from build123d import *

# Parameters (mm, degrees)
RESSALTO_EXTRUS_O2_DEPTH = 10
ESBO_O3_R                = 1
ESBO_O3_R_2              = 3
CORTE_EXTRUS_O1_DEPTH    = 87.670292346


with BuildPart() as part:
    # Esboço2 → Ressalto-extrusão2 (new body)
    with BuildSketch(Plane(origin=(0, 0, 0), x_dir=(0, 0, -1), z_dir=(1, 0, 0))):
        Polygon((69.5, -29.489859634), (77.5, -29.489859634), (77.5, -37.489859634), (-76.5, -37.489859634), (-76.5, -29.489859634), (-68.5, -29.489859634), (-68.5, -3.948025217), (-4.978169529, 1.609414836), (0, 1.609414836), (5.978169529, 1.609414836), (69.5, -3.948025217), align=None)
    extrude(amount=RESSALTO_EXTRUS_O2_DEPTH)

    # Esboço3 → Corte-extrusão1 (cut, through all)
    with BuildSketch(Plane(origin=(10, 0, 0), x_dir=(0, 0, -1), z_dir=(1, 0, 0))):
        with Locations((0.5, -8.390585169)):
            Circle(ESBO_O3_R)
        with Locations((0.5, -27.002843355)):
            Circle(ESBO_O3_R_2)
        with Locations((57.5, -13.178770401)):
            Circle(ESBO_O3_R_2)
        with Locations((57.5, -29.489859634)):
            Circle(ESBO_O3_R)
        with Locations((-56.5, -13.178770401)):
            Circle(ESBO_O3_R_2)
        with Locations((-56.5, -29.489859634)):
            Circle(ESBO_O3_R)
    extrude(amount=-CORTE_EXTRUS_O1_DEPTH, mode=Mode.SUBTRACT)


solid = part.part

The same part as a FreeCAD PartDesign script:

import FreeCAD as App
import Part
import Sketcher

V = App.Vector
Q = App.Units.Quantity


def add_polygon(sketch, points):
    """Adds a closed chain of lines whose ends are joined by coincident constraints."""
    first, n = sketch.GeometryCount, len(points)
    for a, b in zip(points, points[1:] + points[:1]):
        sketch.addGeometry(Part.LineSegment(App.Vector(*a, 0), App.Vector(*b, 0)), False)
    for i in range(n):
        sketch.addConstraint(Sketcher.Constraint("Coincident", first + i, 2, first + (i + 1) % n, 1))

doc = App.newDocument("Part")
body = doc.addObject("PartDesign::Body", "Body")

sketch1 = doc.addObject("Sketcher::SketchObject", "Sketch")
body.addObject(sketch1)
sketch1.AttachmentSupport = (doc.YZ_Plane, [""])
sketch1.MapMode = "FlatFace"
add_polygon(sketch1, [(-29.48986, -77.5), (-29.48986, -69.5), (-3.948025, -69.5), (1.609415, -5.97817), (1.609415, 4.97817), (-3.948025, 68.5), (-29.48986, 68.5), (-29.48986, 76.5), (-37.48986, 76.5), (-37.48986, -77.5)])
sketch1.addConstraint(Sketcher.Constraint("Vertical", 0))
sketch1.addConstraint(Sketcher.Constraint("Horizontal", 1))
sketch1.addConstraint(Sketcher.Constraint("Vertical", 3))
sketch1.addConstraint(Sketcher.Constraint("Horizontal", 5))
sketch1.addConstraint(Sketcher.Constraint("Vertical", 6))
sketch1.addConstraint(Sketcher.Constraint("Horizontal", 7))
sketch1.addConstraint(Sketcher.Constraint("Vertical", 8))
sketch1.addConstraint(Sketcher.Constraint("Horizontal", 9))
sketch1.addConstraint(Sketcher.Constraint("Vertical", 1, 2, 4, 2))
sketch1.addConstraint(Sketcher.Constraint("Vertical", 0, 2, 5, 2))
sketch1.addConstraint(Sketcher.Constraint("Equal", 9, 0))
sketch1.addConstraint(Sketcher.Constraint("Equal", 0, 6))
sketch1.addConstraint(Sketcher.Constraint("Equal", 2, 4))
sketch1.addConstraint(Sketcher.Constraint("DistanceX", 7, 2, 7, 1, 8.0))
sketch1.addConstraint(Sketcher.Constraint("DistanceY", 8, 2, 8, 1, 154.0))
sketch1.addConstraint(Sketcher.Constraint("Angle", 2, Q("85 deg")))
sketch1.addConstraint(Sketcher.Constraint("DistanceY", 0, 2, -1, 1, 69.5))
sketch1.addConstraint(Sketcher.Constraint("DistanceY", 3, 1, 3, 2, 10.956339))
sketch1.addConstraint(Sketcher.Constraint("DistanceX", 1, 1, 1, 2, 25.541834))
sketch1.addConstraint(Sketcher.Constraint("DistanceX", 0, 2, -1, 1, 29.48986))
pad1 = doc.addObject("PartDesign::Pad", "Pad")
body.addObject(pad1)
pad1.Profile = sketch1
pad1.Length = 10

sketch2 = doc.addObject("Sketcher::SketchObject", "Sketch001")
body.addObject(sketch2)
sketch2.AttachmentSupport = (doc.YZ_Plane, [""])
sketch2.MapMode = "FlatFace"
sketch2.AttachmentOffset = App.Placement(V(0, 0, 10), App.Rotation())
sketch2.addGeometry(Part.Circle(V(-8.390585, -0.5, 0), V(0, 0, 1), 1), False)
sketch2.addGeometry(Part.Circle(V(-27.002843, -0.5, 0), V(0, 0, 1), 3), False)
sketch2.addGeometry(Part.Circle(V(-13.17877, -57.5, 0), V(0, 0, 1), 3), False)
sketch2.addGeometry(Part.Circle(V(-29.48986, -57.5, 0), V(0, 0, 1), 1), False)
sketch2.addGeometry(Part.Circle(V(-13.17877, 56.5, 0), V(0, 0, 1), 3), False)
sketch2.addGeometry(Part.Circle(V(-29.48986, 56.5, 0), V(0, 0, 1), 1), False)
sketch2.addConstraint(Sketcher.Constraint("Equal", 1, 2))
sketch2.addConstraint(Sketcher.Constraint("Equal", 0, 3))
sketch2.addConstraint(Sketcher.Constraint("Equal", 2, 4))
sketch2.addConstraint(Sketcher.Constraint("Equal", 3, 5))
sketch2.addConstraint(Sketcher.Constraint("Horizontal", 0, 3, 1, 3))
sketch2.addConstraint(Sketcher.Constraint("Horizontal", 2, 3, 3, 3))
sketch2.addConstraint(Sketcher.Constraint("Horizontal", 4, 3, 5, 3))
sketch2.addConstraint(Sketcher.Constraint("Vertical", 2, 3, 4, 3))
sketch2.addConstraint(Sketcher.Constraint("Vertical", 3, 3, 5, 3))
sketch2.addConstraint(Sketcher.Constraint("Diameter", 0, 2.0))
sketch2.addConstraint(Sketcher.Constraint("Diameter", 1, 6.0))
sketch2.addConstraint(Sketcher.Constraint("DistanceY", 2, 3, 0, 3, 57.0))
sketch2.addConstraint(Sketcher.Constraint("DistanceY", 0, 3, 4, 3, 57.0))
sketch2.addConstraint(Sketcher.Constraint("DistanceY", 0, 3, -1, 1, 0.5))
sketch2.addConstraint(Sketcher.Constraint("DistanceX", 2, 3, -1, 1, 13.17877))
sketch2.addConstraint(Sketcher.Constraint("DistanceX", 3, 3, -1, 1, 29.48986))
sketch2.addConstraint(Sketcher.Constraint("DistanceX", 1, 3, 0, 3, 18.612258))
sketch2.addConstraint(Sketcher.Constraint("DistanceX", 0, 3, -1, 1, 8.390585))
pocket1 = doc.addObject("PartDesign::Pocket", "Pocket")
body.addObject(pocket1)
pocket1.Profile = sketch2
pocket1.Type = "ThroughAll"

doc.recompute()
